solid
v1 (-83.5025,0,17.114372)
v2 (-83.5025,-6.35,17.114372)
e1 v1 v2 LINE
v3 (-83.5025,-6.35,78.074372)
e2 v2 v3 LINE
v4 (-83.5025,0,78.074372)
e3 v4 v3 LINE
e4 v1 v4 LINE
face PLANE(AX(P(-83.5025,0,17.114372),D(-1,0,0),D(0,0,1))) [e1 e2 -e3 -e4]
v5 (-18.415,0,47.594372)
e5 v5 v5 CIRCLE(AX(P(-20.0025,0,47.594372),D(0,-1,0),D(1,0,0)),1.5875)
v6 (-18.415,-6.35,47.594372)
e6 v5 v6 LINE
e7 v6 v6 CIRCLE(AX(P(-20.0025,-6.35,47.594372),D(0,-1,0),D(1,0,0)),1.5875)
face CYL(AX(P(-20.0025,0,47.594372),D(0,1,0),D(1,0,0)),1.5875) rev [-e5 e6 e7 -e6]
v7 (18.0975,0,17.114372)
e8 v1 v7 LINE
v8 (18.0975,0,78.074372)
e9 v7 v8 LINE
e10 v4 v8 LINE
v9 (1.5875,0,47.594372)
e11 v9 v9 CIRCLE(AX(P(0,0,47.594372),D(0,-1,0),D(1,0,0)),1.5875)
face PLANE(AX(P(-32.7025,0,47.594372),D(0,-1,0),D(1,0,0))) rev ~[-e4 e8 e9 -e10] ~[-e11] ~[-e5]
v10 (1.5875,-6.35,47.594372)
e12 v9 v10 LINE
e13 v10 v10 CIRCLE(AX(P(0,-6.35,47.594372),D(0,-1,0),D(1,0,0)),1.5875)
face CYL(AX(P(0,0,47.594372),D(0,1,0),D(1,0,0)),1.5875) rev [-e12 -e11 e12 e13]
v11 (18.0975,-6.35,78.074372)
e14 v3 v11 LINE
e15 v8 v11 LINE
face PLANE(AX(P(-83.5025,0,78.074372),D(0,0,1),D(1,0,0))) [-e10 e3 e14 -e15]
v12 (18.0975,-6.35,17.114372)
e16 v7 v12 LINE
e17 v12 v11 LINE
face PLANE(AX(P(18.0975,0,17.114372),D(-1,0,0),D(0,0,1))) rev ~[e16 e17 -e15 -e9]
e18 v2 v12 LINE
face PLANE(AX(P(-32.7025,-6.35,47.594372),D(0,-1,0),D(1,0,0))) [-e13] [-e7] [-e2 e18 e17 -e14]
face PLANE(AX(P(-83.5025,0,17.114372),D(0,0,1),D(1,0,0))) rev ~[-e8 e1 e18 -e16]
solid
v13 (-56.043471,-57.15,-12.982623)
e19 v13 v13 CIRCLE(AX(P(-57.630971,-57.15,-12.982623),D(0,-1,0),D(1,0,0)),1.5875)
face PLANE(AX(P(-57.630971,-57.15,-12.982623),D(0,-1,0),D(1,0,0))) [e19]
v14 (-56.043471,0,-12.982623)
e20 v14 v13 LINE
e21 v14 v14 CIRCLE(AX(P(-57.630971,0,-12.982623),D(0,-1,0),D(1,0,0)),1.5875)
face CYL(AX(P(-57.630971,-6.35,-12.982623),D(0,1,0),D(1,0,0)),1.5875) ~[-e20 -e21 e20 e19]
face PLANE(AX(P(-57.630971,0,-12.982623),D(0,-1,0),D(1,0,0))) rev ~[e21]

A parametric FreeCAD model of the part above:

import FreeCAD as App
import Part
import Sketcher

V = App.Vector
Q = App.Units.Quantity

doc = App.newDocument("Part")
body = doc.addObject("PartDesign::Body", "Body")
body.AllowCompound = True

# Sketch on XZ plane
sketch1 = body.newObject("Sketcher::SketchObject", "Sketch")
sketch1.AttachmentSupport = (doc.getObject("XZ_Plane"), [""])
sketch1.MapMode = "FlatFace"
sketch1.addGeometry(Part.LineSegment(V(-83.5025, 78.074372, 0), V(-83.5025, 17.114372, 0)), False)
sketch1.addGeometry(Part.LineSegment(V(-83.5025, 17.114372, 0), V(18.0975, 17.114372, 0)), False)
sketch1.addGeometry(Part.LineSegment(V(18.0975, 17.114372, 0), V(18.0975, 78.074372, 0)), False)
sketch1.addGeometry(Part.LineSegment(V(18.0975, 78.074372, 0), V(-83.5025, 78.074372, 0)), False)
sketch1.addGeometry(Part.Circle(V(-20.0025, 47.594372, 0), V(0, 0, 1), 1.5875), False)
sketch1.addGeometry(Part.Circle(V(0, 47.594372, 0), V(0, 0, 1), 1.5875), False)
sketch1.addGeometry(Part.Circle(V(-57.630971, -12.982623, 0), V(0, 0, 1), 1.5875), False)
sketch1.addConstraint(Sketcher.Constraint("Coincident", 0, 2, 1, 1))
sketch1.addConstraint(Sketcher.Constraint("Coincident", 1, 2, 2, 1))
sketch1.addConstraint(Sketcher.Constraint("Coincident", 2, 2, 3, 1))
sketch1.addConstraint(Sketcher.Constraint("Coincident", 3, 2, 0, 1))
sketch1.addConstraint(Sketcher.Constraint("Vertical", 0))
sketch1.addConstraint(Sketcher.Constraint("Horizontal", 1))
sketch1.addConstraint(Sketcher.Constraint("Vertical", 2))
sketch1.addConstraint(Sketcher.Constraint("Horizontal", 3))
sketch1.addConstraint(Sketcher.Constraint("Equal", 4, 5))
sketch1.addConstraint(Sketcher.Constraint("Equal", 5, 6))
sketch1.addConstraint(Sketcher.Constraint("PointOnObject", 5, 3, -2))
sketch1.addConstraint(Sketcher.Constraint("Horizontal", 4, 3, 5, 3))
sketch1.addConstraint(Sketcher.Constraint("DistanceX", 1, 1, 1, 2, Q("4 in")))
sketch1.addConstraint(Sketcher.Constraint("Diameter", 4, Q("0.125 in")))
sketch1.addConstraint(Sketcher.Constraint("DistanceY", 0, 2, 0, 1, Q("2.4 in")))
sketch1.addConstraint(Sketcher.Constraint("DistanceX", 0, 2, 4, 3, Q("2.5 in")))
sketch1.addConstraint(Sketcher.Constraint("DistanceY", 0, 2, 4, 3, Q("1.2 in")))
sketch1.addConstraint(Sketcher.Constraint("DistanceX", 4, 3, -1, 1, Q("0.7875 in")))
sketch1.addConstraint(Sketcher.Constraint("DistanceX", 6, 3, -1, 1, 57.630971))
sketch1.addConstraint(Sketcher.Constraint("DistanceY", -1, 1, 0, 2, 17.114372))
sketch1.addConstraint(Sketcher.Constraint("DistanceY", 6, 3, -1, 1, 12.982623))
pad1 = body.newObject("PartDesign::Pad", "Pad")
pad1.Profile = sketch1
pad1.Length = Q("0.25 in")

# Sketch on XZ plane
sketch2 = body.newObject("Sketcher::SketchObject", "Sketch001")
sketch2.AttachmentSupport = (doc.getObject("XZ_Plane"), [""])
sketch2.MapMode = "FlatFace"
sketch2.AttachmentOffset = App.Placement(V(0, 0, 0.25 * 25.4), App.Rotation())
sketch2.addGeometry(Part.Circle(V(-57.630971, -12.982623, 0), V(0, 0, 1), 1.5875), False)
sketch2.addConstraint(Sketcher.Constraint("Diameter", 0, Q("0.125 in")))
sketch2.addConstraint(Sketcher.Constraint("DistanceX", 0, 3, -1, 1, 57.630971))
sketch2.addConstraint(Sketcher.Constraint("DistanceY", 0, 3, -1, 1, 12.982623))
pad2 = body.newObject("PartDesign::Pad", "Pad001")
pad2.Profile = sketch2
pad2.Length = Q("2 in")

doc.recompute()
